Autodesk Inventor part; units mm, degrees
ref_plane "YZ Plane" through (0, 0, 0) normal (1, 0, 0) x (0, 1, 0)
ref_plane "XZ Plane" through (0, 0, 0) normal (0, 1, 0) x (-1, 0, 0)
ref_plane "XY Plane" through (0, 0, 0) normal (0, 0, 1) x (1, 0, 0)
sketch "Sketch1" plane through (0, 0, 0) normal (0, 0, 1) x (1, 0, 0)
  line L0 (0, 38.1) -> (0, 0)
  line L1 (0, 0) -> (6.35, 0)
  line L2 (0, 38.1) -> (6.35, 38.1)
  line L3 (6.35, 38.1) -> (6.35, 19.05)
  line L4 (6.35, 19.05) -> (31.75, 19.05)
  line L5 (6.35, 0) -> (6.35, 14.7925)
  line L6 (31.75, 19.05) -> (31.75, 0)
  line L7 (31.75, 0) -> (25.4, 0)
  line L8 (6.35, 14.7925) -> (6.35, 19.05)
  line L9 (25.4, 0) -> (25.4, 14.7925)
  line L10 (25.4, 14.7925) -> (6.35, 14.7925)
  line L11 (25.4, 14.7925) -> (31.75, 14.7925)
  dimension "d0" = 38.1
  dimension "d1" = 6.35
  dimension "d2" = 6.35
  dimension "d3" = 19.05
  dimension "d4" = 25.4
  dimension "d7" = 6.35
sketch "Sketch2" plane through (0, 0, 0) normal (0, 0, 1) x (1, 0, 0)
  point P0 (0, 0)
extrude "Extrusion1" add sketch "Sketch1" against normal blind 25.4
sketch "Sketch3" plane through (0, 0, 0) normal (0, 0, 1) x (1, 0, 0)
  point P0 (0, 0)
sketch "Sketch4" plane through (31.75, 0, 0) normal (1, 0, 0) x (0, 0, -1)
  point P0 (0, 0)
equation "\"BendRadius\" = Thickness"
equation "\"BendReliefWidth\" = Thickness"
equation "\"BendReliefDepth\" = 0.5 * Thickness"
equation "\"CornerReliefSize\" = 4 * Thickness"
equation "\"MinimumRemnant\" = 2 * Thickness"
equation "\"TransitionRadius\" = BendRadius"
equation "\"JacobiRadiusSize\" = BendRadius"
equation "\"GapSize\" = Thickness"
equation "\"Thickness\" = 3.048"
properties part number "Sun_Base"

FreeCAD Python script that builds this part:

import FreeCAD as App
import Part
import Sketcher
from FreeCAD import Vector
Q = App.Units.Quantity


def add_polygon(sketch, points):
    """Adds a closed chain of lines whose ends are joined by coincident constraints."""
    first, n = sketch.GeometryCount, len(points)
    for a, b in zip(points, points[1:] + points[:1]):
        sketch.addGeometry(Part.LineSegment(App.Vector(*a, 0), App.Vector(*b, 0)), False)
    for i in range(n):
        sketch.addConstraint(Sketcher.Constraint("Coincident", first + i, 2, first + (i + 1) % n, 1))

doc = App.newDocument("Part")
body = doc.addObject("PartDesign::Body", "Body")

# Sketch on XY plane
sketch1 = doc.addObject("Sketcher::SketchObject", "Sketch")
body.addObject(sketch1)
sketch1.AttachmentSupport = (doc.XY_Plane, [""])
sketch1.MapMode = "FlatFace"
add_polygon(sketch1, [(6, 38), (0, 38), (0, 0), (6, 0), (6, 15), (25, 15), (25, 0), (32, 0), (32, 19), (6, 19)])  # lines 0-9
sketch1.addConstraint([
    Sketcher.Constraint("Horizontal", 0),
    Sketcher.Constraint("Vertical", 1),
    Sketcher.Constraint("Horizontal", 2),
    Sketcher.Constraint("Vertical", 3),
    Sketcher.Constraint("Horizontal", 4),
    Sketcher.Constraint("Vertical", 5),
    Sketcher.Constraint("Horizontal", 6),
    Sketcher.Constraint("Vertical", 7),
    Sketcher.Constraint("Horizontal", 8),
    Sketcher.Constraint("Vertical", 9),
    Sketcher.Constraint("Coincident", 1, 2, -1, 1),
    Sketcher.Constraint("PointOnObject", 5, 2, -1),
    Sketcher.Constraint("Vertical", 3, 2, 8, 2),
    Sketcher.Constraint("Equal", 2, 6),
    Sketcher.Constraint("Equal", 4, 7),
    Sketcher.Constraint("Equal", 7, 9),
    Sketcher.Constraint("DistanceX", 8, 2, 8, 1, Q("1 in")),
    Sketcher.Constraint("DistanceY", 1, 2, 1, 1, Q("1.5 in")),
    Sketcher.Constraint("DistanceY", 3, 1, 3, 2, Q("14.7925 mm")),
])
pad1 = doc.addObject("PartDesign::Pad", "Pad")
body.addObject(pad1)
pad1.Profile = sketch1
pad1.Length = Q("1 in")
pad1.Reversed = True

doc.recompute()
